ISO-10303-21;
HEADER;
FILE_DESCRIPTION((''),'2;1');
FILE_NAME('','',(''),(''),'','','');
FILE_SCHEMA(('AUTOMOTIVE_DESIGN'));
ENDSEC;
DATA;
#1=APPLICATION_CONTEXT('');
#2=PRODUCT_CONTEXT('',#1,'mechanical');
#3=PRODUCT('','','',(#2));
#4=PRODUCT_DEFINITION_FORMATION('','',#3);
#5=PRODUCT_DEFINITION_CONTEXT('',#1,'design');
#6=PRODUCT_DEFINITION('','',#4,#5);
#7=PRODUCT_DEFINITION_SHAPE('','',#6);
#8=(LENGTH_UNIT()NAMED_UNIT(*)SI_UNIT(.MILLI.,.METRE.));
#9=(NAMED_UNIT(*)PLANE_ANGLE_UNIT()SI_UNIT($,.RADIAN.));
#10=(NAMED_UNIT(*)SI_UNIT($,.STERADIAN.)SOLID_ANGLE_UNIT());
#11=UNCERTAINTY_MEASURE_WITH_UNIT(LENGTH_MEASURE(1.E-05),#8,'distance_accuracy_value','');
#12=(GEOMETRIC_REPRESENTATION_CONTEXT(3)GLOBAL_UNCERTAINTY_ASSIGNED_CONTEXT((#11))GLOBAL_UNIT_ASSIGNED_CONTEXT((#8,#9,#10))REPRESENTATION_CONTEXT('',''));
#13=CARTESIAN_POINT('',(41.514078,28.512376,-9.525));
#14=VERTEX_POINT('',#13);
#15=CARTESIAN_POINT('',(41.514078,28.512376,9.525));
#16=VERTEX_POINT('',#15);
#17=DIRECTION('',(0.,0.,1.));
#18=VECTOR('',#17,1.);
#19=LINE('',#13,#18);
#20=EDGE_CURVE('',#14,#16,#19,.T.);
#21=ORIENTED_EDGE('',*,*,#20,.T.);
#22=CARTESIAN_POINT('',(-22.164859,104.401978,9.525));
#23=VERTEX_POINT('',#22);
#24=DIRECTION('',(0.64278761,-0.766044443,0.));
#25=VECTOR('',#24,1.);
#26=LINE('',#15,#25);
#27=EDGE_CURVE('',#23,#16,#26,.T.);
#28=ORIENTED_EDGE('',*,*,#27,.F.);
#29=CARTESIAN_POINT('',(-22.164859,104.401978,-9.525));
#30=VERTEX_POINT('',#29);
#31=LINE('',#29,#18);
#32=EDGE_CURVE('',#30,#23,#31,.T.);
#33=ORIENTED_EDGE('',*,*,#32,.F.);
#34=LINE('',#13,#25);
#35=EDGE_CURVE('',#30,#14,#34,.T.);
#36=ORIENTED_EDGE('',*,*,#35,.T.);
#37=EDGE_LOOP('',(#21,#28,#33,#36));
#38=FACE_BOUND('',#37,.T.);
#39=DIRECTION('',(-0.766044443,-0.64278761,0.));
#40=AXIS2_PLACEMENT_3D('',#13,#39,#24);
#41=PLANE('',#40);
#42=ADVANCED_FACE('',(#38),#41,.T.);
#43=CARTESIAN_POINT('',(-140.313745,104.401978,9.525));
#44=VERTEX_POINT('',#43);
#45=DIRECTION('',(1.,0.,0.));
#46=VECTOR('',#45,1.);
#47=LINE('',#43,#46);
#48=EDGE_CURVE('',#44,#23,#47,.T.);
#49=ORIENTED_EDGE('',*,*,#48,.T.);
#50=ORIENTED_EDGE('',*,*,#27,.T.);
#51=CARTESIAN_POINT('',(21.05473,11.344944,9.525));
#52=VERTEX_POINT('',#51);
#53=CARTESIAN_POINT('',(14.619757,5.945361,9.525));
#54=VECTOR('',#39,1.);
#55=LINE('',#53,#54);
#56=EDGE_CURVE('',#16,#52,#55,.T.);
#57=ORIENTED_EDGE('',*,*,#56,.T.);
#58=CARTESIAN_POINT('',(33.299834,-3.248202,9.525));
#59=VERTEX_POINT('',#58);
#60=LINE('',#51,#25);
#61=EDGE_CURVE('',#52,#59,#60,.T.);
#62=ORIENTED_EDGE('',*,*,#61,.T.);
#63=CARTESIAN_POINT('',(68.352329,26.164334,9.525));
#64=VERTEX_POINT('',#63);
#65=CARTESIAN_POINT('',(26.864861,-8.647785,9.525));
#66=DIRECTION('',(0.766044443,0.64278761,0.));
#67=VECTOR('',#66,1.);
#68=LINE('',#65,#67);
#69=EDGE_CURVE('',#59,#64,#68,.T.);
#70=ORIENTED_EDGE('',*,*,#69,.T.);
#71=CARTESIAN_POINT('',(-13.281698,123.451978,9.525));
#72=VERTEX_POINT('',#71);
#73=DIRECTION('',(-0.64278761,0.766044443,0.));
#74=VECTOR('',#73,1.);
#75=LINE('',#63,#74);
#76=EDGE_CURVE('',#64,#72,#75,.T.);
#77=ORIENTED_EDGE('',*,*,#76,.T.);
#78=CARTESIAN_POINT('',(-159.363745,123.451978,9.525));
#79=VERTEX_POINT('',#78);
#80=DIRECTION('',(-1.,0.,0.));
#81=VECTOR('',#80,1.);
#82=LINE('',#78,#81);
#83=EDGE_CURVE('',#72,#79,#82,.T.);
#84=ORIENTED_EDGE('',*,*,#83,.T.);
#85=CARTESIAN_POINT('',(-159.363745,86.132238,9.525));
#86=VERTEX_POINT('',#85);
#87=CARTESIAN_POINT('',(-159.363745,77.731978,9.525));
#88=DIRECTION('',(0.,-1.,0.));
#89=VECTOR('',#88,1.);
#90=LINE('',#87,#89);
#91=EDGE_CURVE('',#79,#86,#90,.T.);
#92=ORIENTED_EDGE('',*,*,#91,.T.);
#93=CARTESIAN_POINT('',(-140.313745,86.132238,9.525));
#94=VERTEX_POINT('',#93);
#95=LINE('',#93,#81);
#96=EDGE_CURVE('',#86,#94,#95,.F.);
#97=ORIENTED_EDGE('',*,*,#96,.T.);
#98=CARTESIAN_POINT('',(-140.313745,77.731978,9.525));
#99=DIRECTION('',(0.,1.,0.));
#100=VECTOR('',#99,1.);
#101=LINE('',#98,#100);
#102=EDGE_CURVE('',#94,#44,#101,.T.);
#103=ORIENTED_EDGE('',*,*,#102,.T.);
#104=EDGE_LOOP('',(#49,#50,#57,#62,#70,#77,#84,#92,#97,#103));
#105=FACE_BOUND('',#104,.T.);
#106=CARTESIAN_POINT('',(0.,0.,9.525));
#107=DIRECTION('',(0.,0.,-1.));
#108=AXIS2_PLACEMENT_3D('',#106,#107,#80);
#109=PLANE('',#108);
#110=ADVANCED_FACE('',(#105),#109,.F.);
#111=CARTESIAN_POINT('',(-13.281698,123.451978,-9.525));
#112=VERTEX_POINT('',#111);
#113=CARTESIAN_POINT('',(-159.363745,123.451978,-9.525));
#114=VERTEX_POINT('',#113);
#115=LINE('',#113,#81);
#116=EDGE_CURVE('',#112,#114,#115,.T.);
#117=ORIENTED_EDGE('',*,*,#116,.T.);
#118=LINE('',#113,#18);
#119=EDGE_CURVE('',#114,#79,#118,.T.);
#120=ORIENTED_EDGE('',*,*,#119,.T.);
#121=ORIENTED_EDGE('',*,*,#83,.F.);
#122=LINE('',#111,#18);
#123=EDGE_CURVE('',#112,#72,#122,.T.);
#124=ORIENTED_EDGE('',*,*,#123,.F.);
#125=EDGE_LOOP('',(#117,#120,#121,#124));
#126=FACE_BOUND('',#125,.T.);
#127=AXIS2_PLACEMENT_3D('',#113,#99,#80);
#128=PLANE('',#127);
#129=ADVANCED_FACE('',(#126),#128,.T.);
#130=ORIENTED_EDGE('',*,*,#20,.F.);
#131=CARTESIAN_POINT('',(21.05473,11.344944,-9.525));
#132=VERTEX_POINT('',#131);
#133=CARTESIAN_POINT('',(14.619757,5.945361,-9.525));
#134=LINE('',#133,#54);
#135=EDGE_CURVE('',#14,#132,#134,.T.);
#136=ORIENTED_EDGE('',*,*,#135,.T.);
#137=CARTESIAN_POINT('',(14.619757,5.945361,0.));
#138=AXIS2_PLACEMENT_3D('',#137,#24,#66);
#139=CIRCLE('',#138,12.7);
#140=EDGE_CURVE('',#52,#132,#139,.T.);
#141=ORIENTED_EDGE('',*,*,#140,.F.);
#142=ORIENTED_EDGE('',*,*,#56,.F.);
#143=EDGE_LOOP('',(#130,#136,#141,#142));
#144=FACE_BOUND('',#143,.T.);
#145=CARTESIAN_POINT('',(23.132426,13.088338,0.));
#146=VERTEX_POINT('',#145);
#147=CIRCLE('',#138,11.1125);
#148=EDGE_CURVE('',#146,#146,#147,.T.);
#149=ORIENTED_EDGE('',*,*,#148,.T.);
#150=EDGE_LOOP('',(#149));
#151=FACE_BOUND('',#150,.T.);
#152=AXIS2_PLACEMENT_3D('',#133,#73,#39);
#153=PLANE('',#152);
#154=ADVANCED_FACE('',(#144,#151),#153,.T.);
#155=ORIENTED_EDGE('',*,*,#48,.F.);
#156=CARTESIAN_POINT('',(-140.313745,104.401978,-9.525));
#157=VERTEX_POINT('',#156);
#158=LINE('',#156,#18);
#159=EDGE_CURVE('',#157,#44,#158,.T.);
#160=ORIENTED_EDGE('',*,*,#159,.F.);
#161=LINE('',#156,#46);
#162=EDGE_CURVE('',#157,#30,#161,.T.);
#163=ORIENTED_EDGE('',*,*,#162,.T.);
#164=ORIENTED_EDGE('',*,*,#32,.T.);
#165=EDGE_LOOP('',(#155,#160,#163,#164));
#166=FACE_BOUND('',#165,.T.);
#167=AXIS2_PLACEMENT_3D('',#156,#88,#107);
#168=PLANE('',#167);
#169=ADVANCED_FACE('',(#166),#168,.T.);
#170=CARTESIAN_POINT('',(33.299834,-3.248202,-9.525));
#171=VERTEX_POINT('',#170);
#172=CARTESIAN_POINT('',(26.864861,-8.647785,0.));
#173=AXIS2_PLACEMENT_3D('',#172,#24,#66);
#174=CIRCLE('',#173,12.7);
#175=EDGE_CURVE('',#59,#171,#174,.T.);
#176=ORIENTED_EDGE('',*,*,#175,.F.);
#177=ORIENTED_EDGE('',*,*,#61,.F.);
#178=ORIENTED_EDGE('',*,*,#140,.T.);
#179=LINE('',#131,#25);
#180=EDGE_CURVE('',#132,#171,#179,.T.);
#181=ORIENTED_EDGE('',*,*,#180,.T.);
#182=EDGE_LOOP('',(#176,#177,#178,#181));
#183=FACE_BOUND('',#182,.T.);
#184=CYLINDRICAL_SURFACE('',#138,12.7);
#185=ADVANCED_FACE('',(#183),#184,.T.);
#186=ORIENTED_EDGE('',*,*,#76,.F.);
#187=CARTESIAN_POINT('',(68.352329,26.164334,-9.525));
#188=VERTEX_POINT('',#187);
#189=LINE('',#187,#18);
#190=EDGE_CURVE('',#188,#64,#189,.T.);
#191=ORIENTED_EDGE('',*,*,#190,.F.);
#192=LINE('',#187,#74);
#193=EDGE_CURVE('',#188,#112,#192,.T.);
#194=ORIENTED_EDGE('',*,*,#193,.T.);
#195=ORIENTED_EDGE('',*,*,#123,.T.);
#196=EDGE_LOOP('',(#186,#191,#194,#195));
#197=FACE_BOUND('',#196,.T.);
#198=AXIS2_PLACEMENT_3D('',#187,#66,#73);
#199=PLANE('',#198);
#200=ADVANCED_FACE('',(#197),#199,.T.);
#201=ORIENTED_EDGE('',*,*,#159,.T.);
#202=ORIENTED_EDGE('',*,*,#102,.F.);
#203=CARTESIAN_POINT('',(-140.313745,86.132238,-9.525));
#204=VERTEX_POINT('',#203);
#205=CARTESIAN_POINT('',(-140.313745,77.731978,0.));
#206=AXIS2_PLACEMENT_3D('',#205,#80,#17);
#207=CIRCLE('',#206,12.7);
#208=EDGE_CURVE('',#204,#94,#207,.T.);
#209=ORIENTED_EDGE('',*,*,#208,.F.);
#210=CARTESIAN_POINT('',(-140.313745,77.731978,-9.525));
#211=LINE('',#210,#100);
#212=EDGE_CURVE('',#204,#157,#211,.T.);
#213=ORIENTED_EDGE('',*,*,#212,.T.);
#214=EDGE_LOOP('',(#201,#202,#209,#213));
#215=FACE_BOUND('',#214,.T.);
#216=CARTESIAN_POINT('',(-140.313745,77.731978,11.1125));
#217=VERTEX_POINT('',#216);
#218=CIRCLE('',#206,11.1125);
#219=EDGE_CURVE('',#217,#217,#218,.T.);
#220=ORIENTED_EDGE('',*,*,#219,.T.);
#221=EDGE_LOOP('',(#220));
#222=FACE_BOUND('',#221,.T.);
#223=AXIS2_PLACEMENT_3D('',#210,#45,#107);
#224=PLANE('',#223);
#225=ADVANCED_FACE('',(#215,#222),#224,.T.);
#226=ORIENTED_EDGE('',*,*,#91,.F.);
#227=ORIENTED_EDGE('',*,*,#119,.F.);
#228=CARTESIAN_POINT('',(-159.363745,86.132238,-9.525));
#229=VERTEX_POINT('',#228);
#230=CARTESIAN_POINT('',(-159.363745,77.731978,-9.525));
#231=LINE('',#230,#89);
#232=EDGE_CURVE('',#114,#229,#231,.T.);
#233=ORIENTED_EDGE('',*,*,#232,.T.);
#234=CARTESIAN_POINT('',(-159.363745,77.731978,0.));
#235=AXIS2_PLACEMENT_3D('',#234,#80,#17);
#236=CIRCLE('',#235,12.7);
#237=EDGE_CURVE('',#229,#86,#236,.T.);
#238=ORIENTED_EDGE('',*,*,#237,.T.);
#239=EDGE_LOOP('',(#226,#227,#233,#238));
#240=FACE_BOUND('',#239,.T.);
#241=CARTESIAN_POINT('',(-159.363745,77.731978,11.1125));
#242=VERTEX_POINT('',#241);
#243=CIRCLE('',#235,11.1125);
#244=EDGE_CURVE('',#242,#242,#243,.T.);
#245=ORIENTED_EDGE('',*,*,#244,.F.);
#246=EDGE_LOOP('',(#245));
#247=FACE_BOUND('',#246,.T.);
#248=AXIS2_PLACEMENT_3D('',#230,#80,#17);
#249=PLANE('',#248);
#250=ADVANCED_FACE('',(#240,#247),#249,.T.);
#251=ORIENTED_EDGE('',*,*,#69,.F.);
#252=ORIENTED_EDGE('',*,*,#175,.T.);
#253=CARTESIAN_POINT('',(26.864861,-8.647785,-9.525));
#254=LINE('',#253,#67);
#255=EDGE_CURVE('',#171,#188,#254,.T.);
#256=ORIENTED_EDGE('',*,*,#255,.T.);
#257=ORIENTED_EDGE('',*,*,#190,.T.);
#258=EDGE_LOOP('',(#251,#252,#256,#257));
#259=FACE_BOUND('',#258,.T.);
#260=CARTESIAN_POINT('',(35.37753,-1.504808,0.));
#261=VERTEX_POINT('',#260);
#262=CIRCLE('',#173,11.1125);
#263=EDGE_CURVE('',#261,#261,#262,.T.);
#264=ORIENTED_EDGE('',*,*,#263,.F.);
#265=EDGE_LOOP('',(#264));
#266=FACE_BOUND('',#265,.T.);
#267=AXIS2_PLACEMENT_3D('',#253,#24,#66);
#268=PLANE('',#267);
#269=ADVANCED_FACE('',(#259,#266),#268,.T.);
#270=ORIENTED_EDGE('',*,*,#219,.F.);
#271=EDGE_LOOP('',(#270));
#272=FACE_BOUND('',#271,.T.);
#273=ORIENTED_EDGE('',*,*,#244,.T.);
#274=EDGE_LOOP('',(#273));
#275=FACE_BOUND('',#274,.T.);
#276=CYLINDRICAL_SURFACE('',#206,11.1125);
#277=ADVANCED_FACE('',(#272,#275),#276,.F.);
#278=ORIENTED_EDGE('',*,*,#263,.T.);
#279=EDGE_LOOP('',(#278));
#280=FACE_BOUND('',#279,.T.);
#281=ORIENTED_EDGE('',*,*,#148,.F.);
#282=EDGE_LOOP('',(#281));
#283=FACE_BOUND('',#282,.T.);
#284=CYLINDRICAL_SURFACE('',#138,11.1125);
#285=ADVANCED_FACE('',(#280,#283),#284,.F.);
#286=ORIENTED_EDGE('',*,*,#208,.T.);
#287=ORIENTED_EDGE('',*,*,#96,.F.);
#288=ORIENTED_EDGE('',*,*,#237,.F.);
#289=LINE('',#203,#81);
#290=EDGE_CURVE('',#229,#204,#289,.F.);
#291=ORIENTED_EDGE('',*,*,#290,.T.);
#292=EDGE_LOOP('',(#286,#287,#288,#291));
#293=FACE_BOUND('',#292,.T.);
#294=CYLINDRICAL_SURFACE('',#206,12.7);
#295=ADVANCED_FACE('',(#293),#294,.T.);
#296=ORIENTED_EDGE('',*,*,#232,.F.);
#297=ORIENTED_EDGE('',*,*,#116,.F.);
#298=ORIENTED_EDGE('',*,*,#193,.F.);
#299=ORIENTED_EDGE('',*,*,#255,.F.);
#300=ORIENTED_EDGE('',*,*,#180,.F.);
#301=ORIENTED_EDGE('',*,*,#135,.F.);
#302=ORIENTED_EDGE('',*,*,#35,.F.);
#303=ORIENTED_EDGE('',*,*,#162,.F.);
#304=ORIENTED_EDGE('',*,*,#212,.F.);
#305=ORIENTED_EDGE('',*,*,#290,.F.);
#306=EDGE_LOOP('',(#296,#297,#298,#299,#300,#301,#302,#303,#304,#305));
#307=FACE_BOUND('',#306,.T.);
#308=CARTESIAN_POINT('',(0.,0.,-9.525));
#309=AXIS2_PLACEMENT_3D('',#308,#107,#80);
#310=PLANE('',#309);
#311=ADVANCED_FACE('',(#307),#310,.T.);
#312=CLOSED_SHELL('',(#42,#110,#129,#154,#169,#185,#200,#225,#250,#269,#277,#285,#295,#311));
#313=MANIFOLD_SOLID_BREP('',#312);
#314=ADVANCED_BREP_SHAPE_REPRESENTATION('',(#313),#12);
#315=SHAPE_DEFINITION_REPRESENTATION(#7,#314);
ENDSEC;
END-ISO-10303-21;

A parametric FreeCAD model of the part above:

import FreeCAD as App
import Part
import Sketcher
Q = App.Units.Quantity


def add_polygon(sketch, points):
    """Adds a closed chain of lines whose ends are joined by coincident constraints."""
    first, n = sketch.GeometryCount, len(points)
    for a, b in zip(points, points[1:] + points[:1]):
        sketch.addGeometry(Part.LineSegment(App.Vector(*a, 0), App.Vector(*b, 0)), False)
    for i in range(n):
        sketch.addConstraint(Sketcher.Constraint("Coincident", first + i, 2, first + (i + 1) % n, 1))

doc = App.newDocument("Part")
body = doc.addObject("PartDesign::Body", "Body")

sketch1 = doc.addObject("Sketcher::SketchObject", "Sketch")
body.addObject(sketch1)
sketch1.AttachmentSupport = (doc.XY_Plane, [""])
sketch1.MapMode = "FlatFace"
add_polygon(sketch1, [(41.514078, 28.512376), (14.619757, 5.945361), (26.864861, -8.647785), (68.352329, 26.164334), (-13.281698, 123.451978), (-159.363745, 123.451978), (-159.363745, 77.731978), (-140.313745, 77.731978), (-140.313745, 104.401978), (-22.164859, 104.401978)])
sketch1.addConstraint([
    Sketcher.Constraint("Horizontal", 4),
    Sketcher.Constraint("Vertical", 5),
    Sketcher.Constraint("Horizontal", 6),
    Sketcher.Constraint("Vertical", 7),
    Sketcher.Constraint("Horizontal", 8),
    Sketcher.Constraint("Perpendicular", 0, 1),
    Sketcher.Constraint("Perpendicular", 1, 2),
    Sketcher.Constraint("Perpendicular", 2, 3),
    Sketcher.Constraint("Parallel", 3, 9),
    Sketcher.Constraint("Distance", 3, Q("5 in")),
    Sketcher.Constraint("DistanceY", 5, 2, 5, 1, Q("1.8 in")),
    Sketcher.Constraint("Angle", 0, Q("-140 deg")),
    Sketcher.Constraint("DistanceX", 6, 1, 6, 2, Q("0.75 in")),
    Sketcher.Constraint("DistanceY", 7, 1, 7, 2, Q("1.05 in")),
    Sketcher.Constraint("Distance", 1, Q("0.75 in")),
    Sketcher.Constraint("DistanceY", 9, 2, 8, 2, Q("75.889602 mm")),
    Sketcher.Constraint("DistanceX", 4, 2, 4, 1, Q("146.082048 mm")),
    Sketcher.Constraint("DistanceY", -1, 1, 0, 2, Q("5.945361 mm")),
    Sketcher.Constraint("DistanceX", -1, 1, 1, 2, Q("26.864861 mm")),
    Sketcher.Constraint("DistanceX", -1, 1, 2, 2, Q("68.352329 mm")),
])
pad1 = doc.addObject("PartDesign::Pad", "Pad")
body.addObject(pad1)
pad1.Profile = sketch1
pad1.Type = "TwoLengths"
pad1.Length = Q("0.375 in")
pad1.Length2 = Q("0.375 in")

sketch2 = doc.addObject("Sketcher::SketchObject", "Sketch001")
body.addObject(sketch2)
sketch2.AttachmentSupport = (doc.YZ_Plane, [""])
sketch2.MapMode = "FlatFace"
sketch2.AttachmentOffset = App.Placement(App.Vector(0, 0, -159.363745), App.Rotation())
sketch2.addGeometry(Part.Circle(App.Vector(77.731978, 0, 0), App.Vector(0, 0, 1), 12.7), False)
sketch2.addConstraint([
    Sketcher.Constraint("PointOnObject", 0, 3, -1),
    Sketcher.Constraint("Diameter", 0, Q("1 in")),
    Sketcher.Constraint("DistanceX", -1, 1, 0, 3, Q("77.731978 mm")),
])
pad2 = doc.addObject("PartDesign::Pad", "Pad001")
body.addObject(pad2)
pad2.Profile = sketch2
pad2.Length = Q("0.75 in")

sketch3 = doc.addObject("Sketcher::SketchObject", "Sketch002")
body.addObject(sketch3)
sketch3.Placement = App.Placement(App.Vector(15.358116, -18.30309, 0), App.Rotation(App.Vector(0.766044443, 0.64278761, 0), App.Vector(0, 0, 1), App.Vector(0.64278761, -0.766044443, 0), "ZXY"))
sketch3.addGeometry(Part.Circle(App.Vector(15.020988, 0, 0), App.Vector(0, 0, 1), 12.7), False)
sketch3.addConstraint([
    Sketcher.Constraint("PointOnObject", 0, 3, -1),
    Sketcher.Constraint("Diameter", 0, Q("1 in")),
    Sketcher.Constraint("DistanceX", -1, 1, 0, 3, Q("15.020988 mm")),
])
pad3 = doc.addObject("PartDesign::Pad", "Pad002")
body.addObject(pad3)
pad3.Profile = sketch3
pad3.Length = Q("0.75 in")
pad3.Reversed = True

sketch4 = doc.addObject("Sketcher::SketchObject", "Sketch003")
body.addObject(sketch4)
sketch4.Placement = App.Placement(App.Vector(15.358116, -18.30309, 0), App.Rotation(App.Vector(0.766044443, 0.64278761, 0), App.Vector(0, 0, 1), App.Vector(0.64278761, -0.766044443, 0), "ZXY"))
sketch4.addGeometry(Part.Circle(App.Vector(15.020988, 0, 0), App.Vector(0, 0, 1), 11.1125), False)
sketch4.addConstraint([
    Sketcher.Constraint("PointOnObject", 0, 3, -1),
    Sketcher.Constraint("Diameter", 0, Q("0.875 in")),
    Sketcher.Constraint("DistanceX", -1, 1, 0, 3, Q("15.020988 mm")),
])
pocket1 = doc.addObject("PartDesign::Pocket", "Pocket")
body.addObject(pocket1)
pocket1.Profile = sketch4
pocket1.Length = Q("0.75 in")

sketch5 = doc.addObject("Sketcher::SketchObject", "Sketch004")
body.addObject(sketch5)
sketch5.AttachmentSupport = (doc.YZ_Plane, [""])
sketch5.MapMode = "FlatFace"
sketch5.AttachmentOffset = App.Placement(App.Vector(0, 0, -159.363745), App.Rotation())
sketch5.addGeometry(Part.Circle(App.Vector(77.731978, 0, 0), App.Vector(0, 0, 1), 11.1125), False)
sketch5.addConstraint([
    Sketcher.Constraint("PointOnObject", 0, 3, -1),
    Sketcher.Constraint("Diameter", 0, Q("0.875 in")),
    Sketcher.Constraint("DistanceX", -1, 1, 0, 3, Q("77.731978 mm")),
])
pocket2 = doc.addObject("PartDesign::Pocket", "Pocket001")
body.addObject(pocket2)
pocket2.Profile = sketch5
pocket2.Length = Q("0.75 in")
pocket2.Reversed = True

doc.recompute()
